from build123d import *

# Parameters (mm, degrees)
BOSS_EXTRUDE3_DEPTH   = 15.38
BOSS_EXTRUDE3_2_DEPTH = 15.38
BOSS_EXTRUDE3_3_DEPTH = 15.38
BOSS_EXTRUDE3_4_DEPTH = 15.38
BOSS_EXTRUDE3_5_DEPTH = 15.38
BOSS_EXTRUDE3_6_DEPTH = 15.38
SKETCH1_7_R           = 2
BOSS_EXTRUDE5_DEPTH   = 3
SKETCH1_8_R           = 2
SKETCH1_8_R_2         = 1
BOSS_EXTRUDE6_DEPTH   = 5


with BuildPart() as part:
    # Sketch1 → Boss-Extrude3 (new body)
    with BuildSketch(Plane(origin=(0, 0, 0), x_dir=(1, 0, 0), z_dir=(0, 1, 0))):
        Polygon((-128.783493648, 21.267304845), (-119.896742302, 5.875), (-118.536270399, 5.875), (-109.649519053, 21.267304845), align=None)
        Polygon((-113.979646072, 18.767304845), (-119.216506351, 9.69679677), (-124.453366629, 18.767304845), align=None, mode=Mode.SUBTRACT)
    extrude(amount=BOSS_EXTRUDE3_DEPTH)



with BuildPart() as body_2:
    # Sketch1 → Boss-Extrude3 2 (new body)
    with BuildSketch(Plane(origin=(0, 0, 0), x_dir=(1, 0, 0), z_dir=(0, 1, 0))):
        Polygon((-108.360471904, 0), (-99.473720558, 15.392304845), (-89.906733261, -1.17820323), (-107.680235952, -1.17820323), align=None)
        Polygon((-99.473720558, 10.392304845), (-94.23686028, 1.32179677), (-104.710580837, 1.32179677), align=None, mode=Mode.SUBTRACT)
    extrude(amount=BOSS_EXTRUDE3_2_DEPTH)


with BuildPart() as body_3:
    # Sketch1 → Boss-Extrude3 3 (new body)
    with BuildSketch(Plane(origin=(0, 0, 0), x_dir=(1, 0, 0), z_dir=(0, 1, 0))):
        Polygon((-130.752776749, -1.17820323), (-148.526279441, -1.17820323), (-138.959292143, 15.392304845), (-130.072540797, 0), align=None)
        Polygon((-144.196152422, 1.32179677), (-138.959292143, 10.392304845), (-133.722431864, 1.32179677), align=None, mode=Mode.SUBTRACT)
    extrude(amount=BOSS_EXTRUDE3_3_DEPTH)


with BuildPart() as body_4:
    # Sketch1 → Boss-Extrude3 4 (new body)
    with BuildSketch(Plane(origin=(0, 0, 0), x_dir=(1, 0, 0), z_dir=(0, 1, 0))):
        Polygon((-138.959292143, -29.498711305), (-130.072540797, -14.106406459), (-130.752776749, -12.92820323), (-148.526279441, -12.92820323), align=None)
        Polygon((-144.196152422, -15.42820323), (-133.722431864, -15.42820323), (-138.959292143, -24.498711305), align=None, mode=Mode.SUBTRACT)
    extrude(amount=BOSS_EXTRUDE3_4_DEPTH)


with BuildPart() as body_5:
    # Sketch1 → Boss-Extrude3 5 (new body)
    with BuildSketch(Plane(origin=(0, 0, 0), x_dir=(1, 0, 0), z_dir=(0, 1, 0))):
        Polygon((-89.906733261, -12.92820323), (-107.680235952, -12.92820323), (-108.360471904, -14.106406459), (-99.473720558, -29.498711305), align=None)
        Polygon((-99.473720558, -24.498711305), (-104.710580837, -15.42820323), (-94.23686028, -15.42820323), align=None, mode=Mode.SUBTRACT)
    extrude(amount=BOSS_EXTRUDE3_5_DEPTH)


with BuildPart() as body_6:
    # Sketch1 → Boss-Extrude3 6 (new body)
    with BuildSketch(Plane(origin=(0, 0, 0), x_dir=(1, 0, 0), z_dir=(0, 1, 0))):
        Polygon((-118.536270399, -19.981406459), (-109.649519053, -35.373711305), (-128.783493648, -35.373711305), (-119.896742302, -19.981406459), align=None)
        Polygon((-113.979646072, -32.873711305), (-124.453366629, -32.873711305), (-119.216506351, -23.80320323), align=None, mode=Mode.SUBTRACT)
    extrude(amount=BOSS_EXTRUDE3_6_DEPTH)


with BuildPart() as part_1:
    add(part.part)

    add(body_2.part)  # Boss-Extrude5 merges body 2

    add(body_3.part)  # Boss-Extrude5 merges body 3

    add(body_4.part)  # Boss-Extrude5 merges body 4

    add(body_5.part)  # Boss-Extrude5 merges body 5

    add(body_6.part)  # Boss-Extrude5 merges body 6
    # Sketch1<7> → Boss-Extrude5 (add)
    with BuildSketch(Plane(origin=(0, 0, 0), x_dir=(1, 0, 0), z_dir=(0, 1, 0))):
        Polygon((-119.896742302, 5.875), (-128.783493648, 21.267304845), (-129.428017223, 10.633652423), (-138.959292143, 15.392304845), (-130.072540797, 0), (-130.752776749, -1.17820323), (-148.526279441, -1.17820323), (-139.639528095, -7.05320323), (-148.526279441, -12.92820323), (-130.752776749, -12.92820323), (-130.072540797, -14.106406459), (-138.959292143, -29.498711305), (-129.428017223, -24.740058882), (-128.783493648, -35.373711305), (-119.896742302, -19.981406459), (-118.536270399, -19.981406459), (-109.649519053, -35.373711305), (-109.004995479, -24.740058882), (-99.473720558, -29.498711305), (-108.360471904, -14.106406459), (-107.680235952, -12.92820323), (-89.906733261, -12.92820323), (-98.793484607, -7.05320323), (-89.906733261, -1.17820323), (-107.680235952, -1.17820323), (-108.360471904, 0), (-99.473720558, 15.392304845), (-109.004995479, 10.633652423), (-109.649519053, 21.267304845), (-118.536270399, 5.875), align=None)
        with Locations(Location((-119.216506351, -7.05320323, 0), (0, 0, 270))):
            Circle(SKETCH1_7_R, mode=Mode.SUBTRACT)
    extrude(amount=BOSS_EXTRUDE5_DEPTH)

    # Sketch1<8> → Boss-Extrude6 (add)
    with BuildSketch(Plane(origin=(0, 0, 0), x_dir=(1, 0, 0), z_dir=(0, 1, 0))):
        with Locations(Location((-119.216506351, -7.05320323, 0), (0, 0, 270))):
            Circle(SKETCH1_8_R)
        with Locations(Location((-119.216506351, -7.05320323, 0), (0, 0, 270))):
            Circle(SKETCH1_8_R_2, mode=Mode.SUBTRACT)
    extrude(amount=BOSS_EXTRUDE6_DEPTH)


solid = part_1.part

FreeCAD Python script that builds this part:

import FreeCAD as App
import Part
import Sketcher
from FreeCAD import Vector
Q = App.Units.Quantity

doc = App.newDocument("Part")
body = doc.addObject("PartDesign::Body", "Body")

# Sketch on XZ plane
sketch1 = doc.addObject("Sketcher::SketchObject", "Sketch")
body.addObject(sketch1)
sketch1.AttachmentSupport = (doc.XZ_Plane, [""])
sketch1.MapMode = "FlatFace"
sketch1.addGeometry([
    Part.LineSegment(Vector(-128.8, -21.3, 0), Vector(-119.9, -5.9, 0)),  # 0
    Part.LineSegment(Vector(-119.9, -5.9, 0), Vector(-118.5, -5.9, 0)),  # 1
    Part.LineSegment(Vector(-118.5, -5.9, 0), Vector(-109.6, -21.3, 0)),  # 2
    Part.LineSegment(Vector(-109.6, -21.3, 0), Vector(-128.8, -21.3, 0)),  # 3
    Part.LineSegment(Vector(-124.5, -18.8, 0), Vector(-114, -18.8, 0)),  # 4
    Part.LineSegment(Vector(-114, -18.8, 0), Vector(-119.2, -9.7, 0)),  # 5
    Part.LineSegment(Vector(-119.2, -9.7, 0), Vector(-124.5, -18.8, 0)),  # 6
], False)
sketch1.addConstraint([
    Sketcher.Constraint("Coincident", 0, 2, 1, 1),
    Sketcher.Constraint("Coincident", 1, 2, 2, 1),
    Sketcher.Constraint("Coincident", 2, 2, 3, 1),
    Sketcher.Constraint("Coincident", 3, 2, 0, 1),
    Sketcher.Constraint("Coincident", 4, 2, 5, 1),
    Sketcher.Constraint("Coincident", 5, 2, 6, 1),
    Sketcher.Constraint("Coincident", 6, 2, 4, 1),
    Sketcher.Constraint("Horizontal", 1),
    Sketcher.Constraint("Horizontal", 3),
    Sketcher.Constraint("Horizontal", 4),
    Sketcher.Constraint("Parallel", 2, 5),
    Sketcher.Constraint("Parallel", 0, 6),
    Sketcher.Constraint("Equal", 0, 2),
    Sketcher.Constraint("Angle", 0, Q("60 deg")),
    Sketcher.Constraint("DistanceY", 2, 2, 4, 2, Q("2.5 mm")),
    Sketcher.Constraint("DistanceY", 0, 2, -1, 1, Q("5.875 mm")),
    Sketcher.Constraint("DistanceX", 1, 1, 1, 2, Q("1.360472 mm")),
    Sketcher.Constraint("DistanceX", 4, 1, 4, 2, Q("10.473721 mm")),
    Sketcher.Constraint("DistanceX", 3, 2, 3, 1, Q("19.133975 mm")),
    Sketcher.Constraint("DistanceX", 1, 2, -1, 1, Q("118.53627 mm")),
    Sketcher.Constraint("DistanceX", 4, 2, -1, 1, Q("113.979646 mm")),
])
pad1 = doc.addObject("PartDesign::Pad", "Pad")
body.addObject(pad1)
pad1.Profile = sketch1
pad1.Length = 15.38
pad1.Reversed = True
body2 = doc.addObject("PartDesign::Body", "Body001")

# Sketch on XZ plane
sketch2 = doc.addObject("Sketcher::SketchObject", "Sketch001")
body2.addObject(sketch2)
sketch2.AttachmentSupport = (doc.getObject("XZ_Plane001"), [""])
sketch2.MapMode = "FlatFace"
sketch2.addGeometry([
    Part.LineSegment(Vector(-99.5, -15.4, 0), Vector(-108.4, 0, 0)),  # 0
    Part.LineSegment(Vector(-108.4, 0, 0), Vector(-107.7, 1.2, 0)),  # 1
    Part.LineSegment(Vector(-107.7, 1.2, 0), Vector(-89.9, 1.2, 0)),  # 2
    Part.LineSegment(Vector(-89.9, 1.2, 0), Vector(-99.5, -15.4, 0)),  # 3
    Part.LineSegment(Vector(-99.5, -10.4, 0), Vector(-94.2, -1.3, 0)),  # 4
    Part.LineSegment(Vector(-94.2, -1.3, 0), Vector(-104.7, -1.3, 0)),  # 5
    Part.LineSegment(Vector(-104.7, -1.3, 0), Vector(-99.5, -10.4, 0)),  # 6
], False)
sketch2.addConstraint([
    Sketcher.Constraint("Coincident", 0, 2, 1, 1),
    Sketcher.Constraint("Coincident", 1, 2, 2, 1),
    Sketcher.Constraint("Coincident", 2, 2, 3, 1),
    Sketcher.Constraint("Coincident", 3, 2, 0, 1),
    Sketcher.Constraint("Coincident", 4, 2, 5, 1),
    Sketcher.Constraint("Coincident", 5, 2, 6, 1),
    Sketcher.Constraint("Coincident", 6, 2, 4, 1),
    Sketcher.Constraint("Horizontal", 2),
    Sketcher.Constraint("Horizontal", 5),
    Sketcher.Constraint("PointOnObject", 0, 2, -1),
    Sketcher.Constraint("Parallel", 1, 3),
    Sketcher.Constraint("Parallel", 3, 4),
    Sketcher.Constraint("Parallel", 0, 6),
    Sketcher.Constraint("Vertical", 3, 2, 6, 2),
    Sketcher.Constraint("Equal", 4, 6),
    Sketcher.Constraint("Angle", 0, Q("120 deg")),
    Sketcher.Constraint("DistanceY", 3, 2, 6, 2, Q("5 mm")),
    Sketcher.Constraint("DistanceY", 4, 2, 2, 2, Q("2.5 mm")),
    Sketcher.Constraint("DistanceX", 5, 2, 5, 1, Q("10.473721 mm")),
    Sketcher.Constraint("Distance", 1, Q("1.360472 mm")),
    Sketcher.Constraint("DistanceX", 0, 2, -1, 1, Q("108.360472 mm")),
])
pad2 = doc.addObject("PartDesign::Pad", "Pad001")
body2.addObject(pad2)
pad2.Profile = sketch2
pad2.Length = 15.38
pad2.Reversed = True
body3 = doc.addObject("PartDesign::Body", "Body002")

# Sketch on XZ plane
sketch3 = doc.addObject("Sketcher::SketchObject", "Sketch002")
body3.addObject(sketch3)
sketch3.AttachmentSupport = (doc.getObject("XZ_Plane002"), [""])
sketch3.MapMode = "FlatFace"
sketch3.addGeometry([
    Part.LineSegment(Vector(-148.5, 1.2, 0), Vector(-130.8, 1.2, 0)),  # 0
    Part.LineSegment(Vector(-130.8, 1.2, 0), Vector(-130.1, 0, 0)),  # 1
    Part.LineSegment(Vector(-130.1, 0, 0), Vector(-139, -15.4, 0)),  # 2
    Part.LineSegment(Vector(-139, -15.4, 0), Vector(-148.5, 1.2, 0)),  # 3
    Part.LineSegment(Vector(-144.2, -1.3, 0), Vector(-139, -10.4, 0)),  # 4
    Part.LineSegment(Vector(-139, -10.4, 0), Vector(-133.7, -1.3, 0)),  # 5
    Part.LineSegment(Vector(-133.7, -1.3, 0), Vector(-144.2, -1.3, 0)),  # 6
], False)
sketch3.addConstraint([
    Sketcher.Constraint("Coincident", 0, 2, 1, 1),
    Sketcher.Constraint("Coincident", 1, 2, 2, 1),
    Sketcher.Constraint("Coincident", 2, 2, 3, 1),
    Sketcher.Constraint("Coincident", 3, 2, 0, 1),
    Sketcher.Constraint("Coincident", 4, 2, 5, 1),
    Sketcher.Constraint("Coincident", 5, 2, 6, 1),
    Sketcher.Constraint("Coincident", 6, 2, 4, 1),
    Sketcher.Constraint("Horizontal", 0),
    Sketcher.Constraint("Horizontal", 6),
    Sketcher.Constraint("PointOnObject", 1, 2, -1),
    Sketcher.Constraint("Parallel", 1, 3),
    Sketcher.Constraint("Parallel", 3, 4),
    Sketcher.Constraint("Parallel", 2, 5),
    Sketcher.Constraint("Vertical", 2, 2, 4, 2),
    Sketcher.Constraint("Equal", 4, 5),
    Sketcher.Constraint("Angle", 1, Q("-60 deg")),
    Sketcher.Constraint("DistanceY", 2, 2, 4, 2, Q("5 mm")),
    Sketcher.Constraint("DistanceY", 5, 2, 0, 2, Q("2.5 mm")),
    Sketcher.Constraint("DistanceX", 6, 2, 6, 1, Q("10.473721 mm")),
    Sketcher.Constraint("Distance", 1, Q("1.360472 mm")),
    Sketcher.Constraint("DistanceX", 1, 2, -1, 1, Q("130.072541 mm")),
])
pad3 = doc.addObject("PartDesign::Pad", "Pad002")
body3.addObject(pad3)
pad3.Profile = sketch3
pad3.Length = 15.38
pad3.Reversed = True
body4 = doc.addObject("PartDesign::Body", "Body003")

# Sketch on XZ plane
sketch4 = doc.addObject("Sketcher::SketchObject", "Sketch003")
body4.addObject(sketch4)
sketch4.AttachmentSupport = (doc.getObject("XZ_Plane003"), [""])
sketch4.MapMode = "FlatFace"
sketch4.addGeometry([
    Part.LineSegment(Vector(-139, 29.5, 0), Vector(-130.1, 14.1, 0)),  # 0
    Part.LineSegment(Vector(-130.1, 14.1, 0), Vector(-130.8, 12.9, 0)),  # 1
    Part.LineSegment(Vector(-130.8, 12.9, 0), Vector(-148.5, 12.9, 0)),  # 2
    Part.LineSegment(Vector(-148.5, 12.9, 0), Vector(-139, 29.5, 0)),  # 3
    Part.LineSegment(Vector(-139, 24.5, 0), Vector(-144.2, 15.4, 0)),  # 4
    Part.LineSegment(Vector(-144.2, 15.4, 0), Vector(-133.7, 15.4, 0)),  # 5
    Part.LineSegment(Vector(-133.7, 15.4, 0), Vector(-139, 24.5, 0)),  # 6
], False)
sketch4.addConstraint([
    Sketcher.Constraint("Coincident", 0, 2, 1, 1),
    Sketcher.Constraint("Coincident", 1, 2, 2, 1),
    Sketcher.Constraint("Coincident", 2, 2, 3, 1),
    Sketcher.Constraint("Coincident", 3, 2, 0, 1),
    Sketcher.Constraint("Coincident", 4, 2, 5, 1),
    Sketcher.Constraint("Coincident", 5, 2, 6, 1),
    Sketcher.Constraint("Coincident", 6, 2, 4, 1),
    Sketcher.Constraint("Horizontal", 2),
    Sketcher.Constraint("Horizontal", 5),
    Sketcher.Constraint("Parallel", 1, 3),
    Sketcher.Constraint("Parallel", 3, 4),
    Sketcher.Constraint("Parallel", 0, 6),
    Sketcher.Constraint("Vertical", 3, 2, 6, 2),
    Sketcher.Constraint("Equal", 4, 6),
    Sketcher.Constraint("Angle", 0, Q("-60 deg")),
    Sketcher.Constraint("DistanceY", 6, 2, 3, 2, Q("5 mm")),
    Sketcher.Constraint("DistanceY", 2, 2, 4, 2, Q("2.5 mm")),
    Sketcher.Constraint("DistanceX", 5, 1, 5, 2, Q("10.473721 mm")),
    Sketcher.Constraint("Distance", 1, Q("1.360472 mm")),
    Sketcher.Constraint("DistanceX", 0, 2, -1, 1, Q("130.072541 mm")),
    Sketcher.Constraint("DistanceY", -1, 1, 3, 2, Q("29.498711 mm")),
])
pad4 = doc.addObject("PartDesign::Pad", "Pad003")
body4.addObject(pad4)
pad4.Profile = sketch4
pad4.Length = 15.38
pad4.Reversed = True
body5 = doc.addObject("PartDesign::Body", "Body004")

# Sketch on XZ plane
sketch5 = doc.addObject("Sketcher::SketchObject", "Sketch004")
body5.addObject(sketch5)
sketch5.AttachmentSupport = (doc.getObject("XZ_Plane004"), [""])
sketch5.MapMode = "FlatFace"
sketch5.addGeometry([
    Part.LineSegment(Vector(-89.9, 12.9, 0), Vector(-107.7, 12.9, 0)),  # 0
    Part.LineSegment(Vector(-107.7, 12.9, 0), Vector(-108.4, 14.1, 0)),  # 1
    Part.LineSegment(Vector(-108.4, 14.1, 0), Vector(-99.5, 29.5, 0)),  # 2
    Part.LineSegment(Vector(-99.5, 29.5, 0), Vector(-89.9, 12.9, 0)),  # 3
    Part.LineSegment(Vector(-94.2, 15.4, 0), Vector(-99.5, 24.5, 0)),  # 4
    Part.LineSegment(Vector(-99.5, 24.5, 0), Vector(-104.7, 15.4, 0)),  # 5
    Part.LineSegment(Vector(-104.7, 15.4, 0), Vector(-94.2, 15.4, 0)),  # 6
], False)
sketch5.addConstraint([
    Sketcher.Constraint("Coincident", 0, 2, 1, 1),
    Sketcher.Constraint("Coincident", 1, 2, 2, 1),
    Sketcher.Constraint("Coincident", 2, 2, 3, 1),
    Sketcher.Constraint("Coincident", 3, 2, 0, 1),
    Sketcher.Constraint("Coincident", 4, 2, 5, 1),
    Sketcher.Constraint("Coincident", 5, 2, 6, 1),
    Sketcher.Constraint("Coincident", 6, 2, 4, 1),
    Sketcher.Constraint("Horizontal", 0),
    Sketcher.Constraint("Horizontal", 6),
    Sketcher.Constraint("Parallel", 1, 3),
    Sketcher.Constraint("Parallel", 3, 4),
    Sketcher.Constraint("Parallel", 2, 5),
    Sketcher.Constraint("Vertical", 2, 2, 4, 2),
    Sketcher.Constraint("Equal", 4, 5),
    Sketcher.Constraint("Angle", 1, Q("120 deg")),
    Sketcher.Constraint("DistanceY", 4, 2, 2, 2, Q("5 mm")),
    Sketcher.Constraint("DistanceY", 0, 2, 5, 2, Q("2.5 mm")),
    Sketcher.Constraint("DistanceX", 6, 1, 6, 2, Q("10.473721 mm")),
    Sketcher.Constraint("Distance", 1, Q("1.360472 mm")),
    Sketcher.Constraint("DistanceX", 1, 2, -1, 1, Q("108.360472 mm")),
    Sketcher.Constraint("DistanceY", -1, 1, 2, 2, Q("29.498711 mm")),
])
pad5 = doc.addObject("PartDesign::Pad", "Pad004")
body5.addObject(pad5)
pad5.Profile = sketch5
pad5.Length = 15.38
pad5.Reversed = True
body6 = doc.addObject("PartDesign::Body", "Body005")

# Sketch on XZ plane
sketch6 = doc.addObject("Sketcher::SketchObject", "Sketch005")
body6.addObject(sketch6)
sketch6.AttachmentSupport = (doc.getObject("XZ_Plane005"), [""])
sketch6.MapMode = "FlatFace"
sketch6.addGeometry([
    Part.LineSegment(Vector(-109.6, 35.4, 0), Vector(-118.5, 20, 0)),  # 0
    Part.LineSegment(Vector(-118.5, 20, 0), Vector(-119.9, 20, 0)),  # 1
    Part.LineSegment(Vector(-119.9, 20, 0), Vector(-128.8, 35.4, 0)),  # 2
    Part.LineSegment(Vector(-128.8, 35.4, 0), Vector(-109.6, 35.4, 0)),  # 3
    Part.LineSegment(Vector(-114, 32.9, 0), Vector(-124.5, 32.9, 0)),  # 4
    Part.LineSegment(Vector(-124.5, 32.9, 0), Vector(-119.2, 23.8, 0)),  # 5
    Part.LineSegment(Vector(-119.2, 23.8, 0), Vector(-114, 32.9, 0)),  # 6
], False)
sketch6.addConstraint([
    Sketcher.Constraint("Coincident", 0, 2, 1, 1),
    Sketcher.Constraint("Coincident", 1, 2, 2, 1),
    Sketcher.Constraint("Coincident", 2, 2, 3, 1),
    Sketcher.Constraint("Coincident", 3, 2, 0, 1),
    Sketcher.Constraint("Coincident", 4, 2, 5, 1),
    Sketcher.Constraint("Coincident", 5, 2, 6, 1),
    Sketcher.Constraint("Coincident", 6, 2, 4, 1),
    Sketcher.Constraint("Horizontal", 1),
    Sketcher.Constraint("Horizontal", 3),
    Sketcher.Constraint("Horizontal", 4),
    Sketcher.Constraint("Parallel", 2, 5),
    Sketcher.Constraint("Parallel", 0, 6),
    Sketcher.Constraint("Equal", 0, 2),
    Sketcher.Constraint("Angle", 0, Q("-120 deg")),
    Sketcher.Constraint("DistanceY", 4, 2, 2, 2, Q("2.5 mm")),
    Sketcher.Constraint("DistanceX", 1, 2, 1, 1, Q("1.360472 mm")),
    Sketcher.Constraint("DistanceX", 4, 2, 4, 1, Q("10.473721 mm")),
    Sketcher.Constraint("DistanceX", 3, 1, 3, 2, Q("19.133975 mm")),
    Sketcher.Constraint("DistanceX", 0, 2, -1, 1, Q("118.53627 mm")),
    Sketcher.Constraint("DistanceY", -1, 1, 2, 2, Q("35.373711 mm")),
    Sketcher.Constraint("DistanceX", 4, 2, -1, 1, Q("124.453367 mm")),
])
pad6 = doc.addObject("PartDesign::Pad", "Pad005")
body6.addObject(pad6)
pad6.Profile = sketch6
pad6.Length = 15.38
pad6.Reversed = True
body.AllowCompound = True
doc.recompute()

boolean = doc.addObject("PartDesign::Boolean", "Boolean")
body.addObject(boolean)
boolean.Type = "Fuse"
boolean.addObjects([body2])
doc.recompute()

boolean2 = doc.addObject("PartDesign::Boolean", "Boolean001")
body.addObject(boolean2)
boolean2.Type = "Fuse"
boolean2.addObjects([body3])
doc.recompute()

boolean3 = doc.addObject("PartDesign::Boolean", "Boolean002")
body.addObject(boolean3)
boolean3.Type = "Fuse"
boolean3.addObjects([body4])
doc.recompute()

boolean4 = doc.addObject("PartDesign::Boolean", "Boolean003")
body.addObject(boolean4)
boolean4.Type = "Fuse"
boolean4.addObjects([body5])
doc.recompute()

boolean5 = doc.addObject("PartDesign::Boolean", "Boolean004")
body.addObject(boolean5)
boolean5.Type = "Fuse"
boolean5.addObjects([body6])

# Sketch on XZ plane
sketch7 = doc.addObject("Sketcher::SketchObject", "Sketch006")
body.addObject(sketch7)
sketch7.AttachmentSupport = (doc.XZ_Plane, [""])
sketch7.MapMode = "FlatFace"
sketch7.addGeometry([
    Part.LineSegment(Vector(-119.9, -5.9, 0), Vector(-128.8, -21.3, 0)),  # 0
    Part.LineSegment(Vector(-128.8, -21.3, 0), Vector(-129.4, -10.6, 0)),  # 1
    Part.LineSegment(Vector(-129.4, -10.6, 0), Vector(-139, -15.4, 0)),  # 2
    Part.LineSegment(Vector(-139, -15.4, 0), Vector(-130.1, 0, 0)),  # 3
    Part.LineSegment(Vector(-130.1, 0, 0), Vector(-130.8, 1.2, 0)),  # 4
    Part.LineSegment(Vector(-130.8, 1.2, 0), Vector(-148.5, 1.2, 0)),  # 5
    Part.LineSegment(Vector(-148.5, 1.2, 0), Vector(-139.6, 7.1, 0)),  # 6
    Part.LineSegment(Vector(-139.6, 7.1, 0), Vector(-148.5, 12.9, 0)),  # 7
    Part.LineSegment(Vector(-148.5, 12.9, 0), Vector(-130.8, 12.9, 0)),  # 8
    Part.LineSegment(Vector(-130.8, 12.9, 0), Vector(-130.1, 14.1, 0)),  # 9
    Part.LineSegment(Vector(-130.1, 14.1, 0), Vector(-139, 29.5, 0)),  # 10
    Part.LineSegment(Vector(-139, 29.5, 0), Vector(-129.4, 24.7, 0)),  # 11
    Part.LineSegment(Vector(-129.4, 24.7, 0), Vector(-128.8, 35.4, 0)),  # 12
    Part.LineSegment(Vector(-128.8, 35.4, 0), Vector(-119.9, 20, 0)),  # 13
    Part.LineSegment(Vector(-119.9, 20, 0), Vector(-118.5, 20, 0)),  # 14
    Part.LineSegment(Vector(-118.5, 20, 0), Vector(-109.6, 35.4, 0)),  # 15
    Part.LineSegment(Vector(-109.6, 35.4, 0), Vector(-109, 24.7, 0)),  # 16
    Part.LineSegment(Vector(-109, 24.7, 0), Vector(-99.5, 29.5, 0)),  # 17
    Part.LineSegment(Vector(-99.5, 29.5, 0), Vector(-108.4, 14.1, 0)),  # 18
    Part.LineSegment(Vector(-108.4, 14.1, 0), Vector(-107.7, 12.9, 0)),  # 19
    Part.LineSegment(Vector(-107.7, 12.9, 0), Vector(-89.9, 12.9, 0)),  # 20
    Part.LineSegment(Vector(-89.9, 12.9, 0), Vector(-98.8, 7.1, 0)),  # 21
    Part.LineSegment(Vector(-98.8, 7.1, 0), Vector(-89.9, 1.2, 0)),  # 22
    Part.LineSegment(Vector(-89.9, 1.2, 0), Vector(-107.7, 1.2, 0)),  # 23
    Part.LineSegment(Vector(-107.7, 1.2, 0), Vector(-108.4, 0, 0)),  # 24
    Part.LineSegment(Vector(-108.4, 0, 0), Vector(-99.5, -15.4, 0)),  # 25
    Part.LineSegment(Vector(-99.5, -15.4, 0), Vector(-109, -10.6, 0)),  # 26
    Part.LineSegment(Vector(-109, -10.6, 0), Vector(-109.6, -21.3, 0)),  # 27
    Part.LineSegment(Vector(-109.6, -21.3, 0), Vector(-118.5, -5.9, 0)),  # 28
    Part.LineSegment(Vector(-118.5, -5.9, 0), Vector(-119.9, -5.9, 0)),  # 29
    Part.Circle(Vector(-119.2, 7.1, 0), Vector(0, 0, 1), 2),  # 30
], False)
sketch7.addConstraint([
    Sketcher.Constraint("Coincident", 0, 2, 1, 1),
    Sketcher.Constraint("Coincident", 1, 2, 2, 1),
    Sketcher.Constraint("Coincident", 2, 2, 3, 1),
    Sketcher.Constraint("Coincident", 3, 2, 4, 1),
    Sketcher.Constraint("Coincident", 4, 2, 5, 1),
    Sketcher.Constraint("Coincident", 5, 2, 6, 1),
    Sketcher.Constraint("Coincident", 6, 2, 7, 1),
    Sketcher.Constraint("Coincident", 7, 2, 8, 1),
    Sketcher.Constraint("Coincident", 8, 2, 9, 1),
    Sketcher.Constraint("Coincident", 9, 2, 10, 1),
    Sketcher.Constraint("Coincident", 10, 2, 11, 1),
    Sketcher.Constraint("Coincident", 11, 2, 12, 1),
    Sketcher.Constraint("Coincident", 12, 2, 13, 1),
    Sketcher.Constraint("Coincident", 13, 2, 14, 1),
    Sketcher.Constraint("Coincident", 14, 2, 15, 1),
    Sketcher.Constraint("Coincident", 15, 2, 16, 1),
    Sketcher.Constraint("Coincident", 16, 2, 17, 1),
    Sketcher.Constraint("Coincident", 17, 2, 18, 1),
    Sketcher.Constraint("Coincident", 18, 2, 19, 1),
    Sketcher.Constraint("Coincident", 19, 2, 20, 1),
    Sketcher.Constraint("Coincident", 20, 2, 21, 1),
    Sketcher.Constraint("Coincident", 21, 2, 22, 1),
    Sketcher.Constraint("Coincident", 22, 2, 23, 1),
    Sketcher.Constraint("Coincident", 23, 2, 24, 1),
    Sketcher.Constraint("Coincident", 24, 2, 25, 1),
    Sketcher.Constraint("Coincident", 25, 2, 26, 1),
    Sketcher.Constraint("Coincident", 26, 2, 27, 1),
    Sketcher.Constraint("Coincident", 27, 2, 28, 1),
    Sketcher.Constraint("Coincident", 28, 2, 29, 1),
    Sketcher.Constraint("Coincident", 29, 2, 0, 1),
    Sketcher.Constraint("Horizontal", 5),
    Sketcher.Constraint("Horizontal", 8),
    Sketcher.Constraint("Horizontal", 14),
    Sketcher.Constraint("Horizontal", 20),
    Sketcher.Constraint("Horizontal", 23),
    Sketcher.Constraint("Horizontal", 29),
    Sketcher.Constraint("PointOnObject", 3, 2, -1),
    Sketcher.Constraint("PointOnObject", 24, 2, -1),
    Sketcher.Constraint("Parallel", 0, 3),
    Sketcher.Constraint("Parallel", 3, 9),
    Sketcher.Constraint("Parallel", 4, 10),
    Sketcher.Constraint("Parallel", 10, 13),
    Sketcher.Constraint("Parallel", 9, 15),
    Sketcher.Constraint("Parallel", 1, 16),
    Sketcher.Constraint("Parallel", 2, 17),
    Sketcher.Constraint("Parallel", 15, 18),
    Sketcher.Constraint("Parallel", 13, 19),
    Sketcher.Constraint("Parallel", 6, 21),
    Sketcher.Constraint("Parallel", 7, 22),
    Sketcher.Constraint("Parallel", 18, 24),
    Sketcher.Constraint("Parallel", 19, 25),
    Sketcher.Constraint("Parallel", 11, 26),
    Sketcher.Constraint("Parallel", 12, 27),
    Sketcher.Constraint("Parallel", 25, 28),
    Sketcher.Constraint("Horizontal", 30, 3, 6, 2),
    Sketcher.Constraint("Horizontal", 12, 2, 15, 2),
    Sketcher.Constraint("Horizontal", 11, 2, 16, 2),
    Sketcher.Constraint("Horizontal", 10, 2, 17, 2),
    Sketcher.Constraint("Horizontal", 9, 2, 18, 2),
    Sketcher.Constraint("Horizontal", 8, 2, 19, 2),
    Sketcher.Constraint("Horizontal", 6, 2, 21, 2),
    Sketcher.Constraint("Horizontal", 5, 2, 22, 2),
    Sketcher.Constraint("Horizontal", 2, 2, 25, 2),
    Sketcher.Constraint("Horizontal", 1, 2, 26, 2),
    Sketcher.Constraint("Horizontal", 0, 2, 27, 2),
    Sketcher.Constraint("Vertical", 5, 2, 7, 2),
    Sketcher.Constraint("Vertical", 4, 2, 8, 2),
    Sketcher.Constraint("Vertical", 3, 2, 9, 2),
    Sketcher.Constraint("Vertical", 2, 2, 10, 2),
    Sketcher.Constraint("Vertical", 1, 2, 11, 2),
    Sketcher.Constraint("Vertical", 0, 2, 12, 2),
    Sketcher.Constraint("Vertical", 20, 2, 22, 2),
    Sketcher.Constraint("Vertical", 19, 2, 23, 2),
    Sketcher.Constraint("Vertical", 18, 2, 24, 2),
    Sketcher.Constraint("Vertical", 16, 2, 26, 2),
    Sketcher.Constraint("Vertical", 15, 2, 27, 2),
    Sketcher.Constraint("Vertical", 14, 2, 28, 2),
    Sketcher.Constraint("Equal", 8, 20),
    Sketcher.Constraint("Equal", 1, 2),
    Sketcher.Constraint("Equal", 0, 3),
    Sketcher.Constraint("Equal", 2, 6),
    Sketcher.Constraint("Diameter", 30, Q("4 mm")),
    Sketcher.Constraint("Angle", 0, Q("-120 deg")),
    Sketcher.Constraint("DistanceY", 5, 2, 7, 2, Q("11.75 mm")),
    Sketcher.Constraint("DistanceY", 28, 2, -1, 1, Q("5.875 mm")),
    Sketcher.Constraint("DistanceX", 14, 1, 14, 2, Q("1.360472 mm")),
    Sketcher.Constraint("DistanceX", 2, 2, 0, 2, Q("10.175798 mm")),
    Sketcher.Constraint("DistanceX", 11, 2, 15, 2, Q("19.778498 mm")),
    Sketcher.Constraint("Distance", 4, Q("1.360472 mm")),
    Sketcher.Constraint("DistanceX", 5, 2, 5, 1, Q("17.773503 mm")),
    Sketcher.Constraint("DistanceX", 3, 2, -1, 1, Q("130.072541 mm")),
    Sketcher.Constraint("DistanceX", 6, 2, -1, 1, Q("139.639528 mm")),
    Sketcher.Constraint("DistanceX", 1, 2, 30, 3, Q("10.211511 mm")),
])
pad7 = doc.addObject("PartDesign::Pad", "Pad006")
body.addObject(pad7)
pad7.Profile = sketch7
pad7.Length = 3
pad7.Reversed = True

# Sketch on XZ plane
sketch8 = doc.addObject("Sketcher::SketchObject", "Sketch007")
body.addObject(sketch8)
sketch8.AttachmentSupport = (doc.XZ_Plane, [""])
sketch8.MapMode = "FlatFace"
sketch8.addGeometry([
    Part.Circle(Vector(-119.2, 7.1, 0), Vector(0, 0, 1), 2),
    Part.Circle(Vector(-119.2, 7.1, 0), Vector(0, 0, 1), 1),
], False)
sketch8.addConstraint([
    Sketcher.Constraint("Coincident", 1, 3, 0, 3),
    Sketcher.Constraint("Diameter", 0, Q("4 mm")),
    Sketcher.Constraint("Diameter", 1, Q("2 mm")),
    Sketcher.Constraint("DistanceX", 0, 3, -1, 1, Q("119.216506 mm")),
    Sketcher.Constraint("DistanceY", -1, 1, 0, 3, Q("7.053203 mm")),
])
pad8 = doc.addObject("PartDesign::Pad", "Pad007")
body.addObject(pad8)
pad8.Profile = sketch8
pad8.Length = 5
pad8.Reversed = True

doc.recompute()
